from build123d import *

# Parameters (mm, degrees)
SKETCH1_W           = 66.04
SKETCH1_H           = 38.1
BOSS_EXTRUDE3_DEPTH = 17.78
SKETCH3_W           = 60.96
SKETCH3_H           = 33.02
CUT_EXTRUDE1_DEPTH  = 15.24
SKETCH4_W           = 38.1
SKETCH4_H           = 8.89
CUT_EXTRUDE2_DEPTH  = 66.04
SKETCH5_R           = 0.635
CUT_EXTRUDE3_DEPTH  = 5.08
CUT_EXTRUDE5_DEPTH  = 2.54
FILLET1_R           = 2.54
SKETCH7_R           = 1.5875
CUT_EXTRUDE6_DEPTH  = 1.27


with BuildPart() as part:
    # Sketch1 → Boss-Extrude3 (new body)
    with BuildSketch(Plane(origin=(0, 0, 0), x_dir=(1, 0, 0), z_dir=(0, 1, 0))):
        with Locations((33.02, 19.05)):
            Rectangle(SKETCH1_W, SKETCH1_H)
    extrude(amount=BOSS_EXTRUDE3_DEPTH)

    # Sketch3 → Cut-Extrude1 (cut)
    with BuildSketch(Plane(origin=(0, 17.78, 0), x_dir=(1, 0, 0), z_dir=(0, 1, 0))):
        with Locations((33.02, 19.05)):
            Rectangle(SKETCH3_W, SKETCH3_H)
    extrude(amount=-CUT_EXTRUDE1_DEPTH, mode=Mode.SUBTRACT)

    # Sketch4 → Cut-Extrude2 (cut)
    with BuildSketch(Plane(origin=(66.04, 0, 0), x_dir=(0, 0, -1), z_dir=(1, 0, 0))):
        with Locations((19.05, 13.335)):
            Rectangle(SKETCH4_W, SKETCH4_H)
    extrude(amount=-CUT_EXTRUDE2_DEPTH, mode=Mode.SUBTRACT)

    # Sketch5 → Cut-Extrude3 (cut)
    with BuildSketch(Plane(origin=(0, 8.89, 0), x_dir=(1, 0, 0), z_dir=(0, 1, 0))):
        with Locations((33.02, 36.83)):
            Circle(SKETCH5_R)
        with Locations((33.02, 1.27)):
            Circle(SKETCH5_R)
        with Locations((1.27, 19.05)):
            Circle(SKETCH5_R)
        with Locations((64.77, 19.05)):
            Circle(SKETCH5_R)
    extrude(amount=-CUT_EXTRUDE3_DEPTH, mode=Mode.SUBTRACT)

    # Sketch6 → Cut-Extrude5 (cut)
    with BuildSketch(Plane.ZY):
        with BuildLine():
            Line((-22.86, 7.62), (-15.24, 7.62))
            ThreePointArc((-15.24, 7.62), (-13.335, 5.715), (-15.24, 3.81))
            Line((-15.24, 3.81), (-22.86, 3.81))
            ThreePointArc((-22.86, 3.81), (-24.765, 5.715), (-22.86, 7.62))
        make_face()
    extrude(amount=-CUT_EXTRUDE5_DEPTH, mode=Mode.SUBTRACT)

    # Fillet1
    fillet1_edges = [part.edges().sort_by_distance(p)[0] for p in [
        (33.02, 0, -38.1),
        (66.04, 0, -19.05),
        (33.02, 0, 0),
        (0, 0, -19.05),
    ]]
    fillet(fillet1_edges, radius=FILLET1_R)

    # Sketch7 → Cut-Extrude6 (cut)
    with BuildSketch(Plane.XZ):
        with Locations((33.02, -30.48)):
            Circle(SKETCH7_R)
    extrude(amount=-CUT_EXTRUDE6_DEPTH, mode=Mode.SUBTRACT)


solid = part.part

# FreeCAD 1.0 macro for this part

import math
import FreeCAD as App
import Part
import Sketcher

V = App.Vector
Q = App.Units.Quantity


def edges_at(feature, points):
    """Names of the edges that pass closest to the given points."""
    edges = feature.Shape.Edges
    near = lambda p: min(range(len(edges)), key=lambda i: edges[i].distToShape(Part.Vertex(*p))[0])
    return sorted({f"Edge{near(p) + 1}" for p in points})


def add_polygon(sketch, points):
    """Adds a closed chain of lines whose ends are joined by coincident constraints."""
    first, n = sketch.GeometryCount, len(points)
    for a, b in zip(points, points[1:] + points[:1]):
        sketch.addGeometry(Part.LineSegment(App.Vector(*a, 0), App.Vector(*b, 0)), False)
    for i in range(n):
        sketch.addConstraint(Sketcher.Constraint("Coincident", first + i, 2, first + (i + 1) % n, 1))

doc = App.newDocument("Part")
body = doc.addObject("PartDesign::Body", "Body")

# Sketch on XZ plane
sketch1 = doc.addObject("Sketcher::SketchObject", "Sketch")
body.addObject(sketch1)
sketch1.AttachmentSupport = (doc.XZ_Plane, [""])
sketch1.MapMode = "FlatFace"
add_polygon(sketch1, [(0, -38), (0, 0), (66, 0), (66, -38)])  # lines 0-3
sketch1.addConstraint([
    Sketcher.Constraint("Vertical", 0),
    Sketcher.Constraint("Horizontal", 1),
    Sketcher.Constraint("Vertical", 2),
    Sketcher.Constraint("Horizontal", 3),
    Sketcher.Constraint("Coincident", 0, 2, -1, 1),
    Sketcher.Constraint("DistanceX", 1, 1, 1, 2, Q("2.6 in")),
    Sketcher.Constraint("DistanceY", 0, 1, 0, 2, Q("1.5 in")),
])
pad1 = doc.addObject("PartDesign::Pad", "Pad")
body.addObject(pad1)
pad1.Profile = sketch1
pad1.Length = Q("0.7 in")
pad1.Reversed = True

# Sketch on XZ plane
sketch2 = doc.addObject("Sketcher::SketchObject", "Sketch001")
body.addObject(sketch2)
sketch2.AttachmentSupport = (doc.XZ_Plane, [""])
sketch2.MapMode = "FlatFace"
sketch2.AttachmentOffset = App.Placement(V(0, 0, -0.7 * 25.4), App.Rotation())
add_polygon(sketch2, [(3, -36), (3, -3), (64, -3), (64, -36)])  # lines 0-3
sketch2.addConstraint([
    Sketcher.Constraint("Vertical", 0),
    Sketcher.Constraint("Horizontal", 1),
    Sketcher.Constraint("Vertical", 2),
    Sketcher.Constraint("Horizontal", 3),
    Sketcher.Constraint("DistanceX", 1, 1, 1, 2, Q("2.4 in")),
    Sketcher.Constraint("DistanceY", 0, 1, 0, 2, Q("1.3 in")),
    Sketcher.Constraint("DistanceX", -1, 1, 0, 2, Q("0.1 in")),
    Sketcher.Constraint("DistanceY", 0, 2, -1, 1, Q("0.1 in")),
])
pocket1 = doc.addObject("PartDesign::Pocket", "Pocket")
body.addObject(pocket1)
pocket1.Profile = sketch2
pocket1.Length = Q("0.6 in")
pocket1.Reversed = True

# Sketch on YZ plane
sketch3 = doc.addObject("Sketcher::SketchObject", "Sketch002")
body.addObject(sketch3)
sketch3.AttachmentSupport = (doc.YZ_Plane, [""])
sketch3.MapMode = "FlatFace"
sketch3.AttachmentOffset = App.Placement(V(0, 0, 2.6 * 25.4), App.Rotation())
add_polygon(sketch3, [(18, 0), (9, 0), (9, -38), (18, -38)])  # lines 0-3
sketch3.addConstraint([
    Sketcher.Constraint("Horizontal", 0),
    Sketcher.Constraint("Vertical", 1),
    Sketcher.Constraint("Horizontal", 2),
    Sketcher.Constraint("Vertical", 3),
    Sketcher.Constraint("PointOnObject", 0, 2, -1),
    Sketcher.Constraint("DistanceY", 1, 2, 1, 1, Q("1.5 in")),
    Sketcher.Constraint("DistanceX", 0, 2, 0, 1, Q("0.35 in")),
    Sketcher.Constraint("DistanceX", -1, 1, 2, 2, Q("0.7 in")),
])
pocket2 = doc.addObject("PartDesign::Pocket", "Pocket001")
body.addObject(pocket2)
pocket2.Profile = sketch3
pocket2.Length = Q("2.6 in")

# Sketch on XZ plane
sketch4 = doc.addObject("Sketcher::SketchObject", "Sketch003")
body.addObject(sketch4)
sketch4.AttachmentSupport = (doc.XZ_Plane, [""])
sketch4.MapMode = "FlatFace"
sketch4.AttachmentOffset = App.Placement(V(0, 0, -0.35 * 25.4), App.Rotation())
sketch4.addGeometry([
    Part.Circle(V(33, -36.8, 0), V(0, 0, 1), 0.6),
    Part.Circle(V(33, -1.3, 0), V(0, 0, 1), 0.6),
    Part.Circle(V(1.3, -19.1, 0), V(0, 0, 1), 0.6),
    Part.Circle(V(64.8, -19.1, 0), V(0, 0, 1), 0.6),
], False)
sketch4.addConstraint([
    Sketcher.Constraint("Equal", 0, 1),
    Sketcher.Constraint("Equal", 1, 2),
    Sketcher.Constraint("Equal", 2, 3),
    Sketcher.Constraint("Horizontal", 2, 3, 3, 3),
    Sketcher.Constraint("Vertical", 0, 3, 1, 3),
    Sketcher.Constraint("Diameter", 0, Q("0.05 in")),
    Sketcher.Constraint("DistanceX", -1, 1, 0, 3, Q("1.3 in")),
    Sketcher.Constraint("DistanceY", 0, 3, 1, 3, Q("1.4 in")),
    Sketcher.Constraint("DistanceY", 0, 3, 2, 3, Q("0.7 in")),
    Sketcher.Constraint("DistanceX", 2, 3, 3, 3, Q("2.5 in")),
    Sketcher.Constraint("DistanceY", 0, 3, -1, 1, Q("1.45 in")),
    Sketcher.Constraint("DistanceX", -1, 1, 2, 3, Q("0.05 in")),
])
pocket3 = doc.addObject("PartDesign::Pocket", "Pocket002")
body.addObject(pocket3)
pocket3.Profile = sketch4
pocket3.Length = Q("0.2 in")
pocket3.Reversed = True

# Sketch on YZ plane
sketch5 = doc.addObject("Sketcher::SketchObject", "Sketch004")
body.addObject(sketch5)
sketch5.AttachmentSupport = (doc.YZ_Plane, [""])
sketch5.MapMode = "FlatFace"
sketch5.addGeometry([
    Part.LineSegment(V(7.6, -15.2, 0), V(7.6, -22.9, 0)),
    Part.ArcOfCircle(Part.Circle(V(5.7, -22.9, 0), V(0, 0, 1), 1.9), math.radians(180), math.radians(360)),
    Part.LineSegment(V(3.8, -22.9, 0), V(3.8, -15.2, 0)),
    Part.ArcOfCircle(Part.Circle(V(5.7, -15.2, 0), V(0, 0, 1), 1.9), math.radians(0), math.radians(180)),
], False)
sketch5.addConstraint([
    Sketcher.Constraint("Tangent", 0, 2, 1, 2),
    Sketcher.Constraint("Tangent", 1, 1, 2, 1),
    Sketcher.Constraint("Tangent", 2, 2, 3, 2),
    Sketcher.Constraint("Tangent", 3, 1, 0, 1),
    Sketcher.Constraint("Vertical", 0),
    Sketcher.Constraint("Vertical", 2),
    Sketcher.Constraint("DistanceY", 0, 2, 0, 1, Q("0.3 in")),
    Sketcher.Constraint("Radius", 1, Q("0.075 in")),
    Sketcher.Constraint("DistanceY", 1, 3, -1, 1, Q("0.9 in")),
    Sketcher.Constraint("DistanceX", -1, 1, 0, 2, Q("0.3 in")),
])
pocket4 = doc.addObject("PartDesign::Pocket", "Pocket003")
body.addObject(pocket4)
pocket4.Profile = sketch5
pocket4.Length = Q("0.1 in")
pocket4.Reversed = True
doc.recompute()

fillet = doc.addObject("PartDesign::Fillet", "Fillet")
body.addObject(fillet)
fillet.Base = (pocket4, edges_at(pocket4, [
    (33.02, 0, -38.1),
    (66.04, 0, -19.05),
    (33.02, 0, 0),
    (0, 0, -19.05),
]))
fillet.Radius = Q("0.1 in")

# Sketch on XZ plane
sketch6 = doc.addObject("Sketcher::SketchObject", "Sketch005")
body.addObject(sketch6)
sketch6.AttachmentSupport = (doc.XZ_Plane, [""])
sketch6.MapMode = "FlatFace"
sketch6.addGeometry(Part.Circle(V(33, -30.5, 0), V(0, 0, 1), 1.6), False)
sketch6.addConstraint([
    Sketcher.Constraint("Diameter", 0, Q("0.125 in")),
    Sketcher.Constraint("DistanceX", -1, 1, 0, 3, Q("1.3 in")),
    Sketcher.Constraint("DistanceY", 0, 3, -1, 1, Q("1.2 in")),
])
pocket5 = doc.addObject("PartDesign::Pocket", "Pocket004")
body.addObject(pocket5)
pocket5.Profile = sketch6
pocket5.Length = Q("0.05 in")

doc.recompute()
